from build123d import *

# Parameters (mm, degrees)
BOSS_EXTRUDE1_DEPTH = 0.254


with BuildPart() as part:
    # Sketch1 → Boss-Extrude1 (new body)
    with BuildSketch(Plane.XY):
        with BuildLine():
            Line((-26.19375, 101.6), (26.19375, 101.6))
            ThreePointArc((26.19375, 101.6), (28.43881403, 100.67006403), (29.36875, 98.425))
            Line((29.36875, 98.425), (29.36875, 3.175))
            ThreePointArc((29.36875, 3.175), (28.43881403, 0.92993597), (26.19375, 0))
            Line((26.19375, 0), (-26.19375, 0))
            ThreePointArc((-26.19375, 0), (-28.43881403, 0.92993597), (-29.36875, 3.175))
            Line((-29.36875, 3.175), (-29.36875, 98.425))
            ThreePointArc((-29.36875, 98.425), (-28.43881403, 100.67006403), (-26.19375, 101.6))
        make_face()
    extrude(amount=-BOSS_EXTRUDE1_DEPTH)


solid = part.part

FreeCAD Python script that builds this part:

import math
import FreeCAD as App
import Part
import Sketcher
from FreeCAD import Vector
Q = App.Units.Quantity

doc = App.newDocument("Part")
body = doc.addObject("PartDesign::Body", "Body")

# Sketch on XY plane
sketch1 = doc.addObject("Sketcher::SketchObject", "Sketch")
body.addObject(sketch1)
sketch1.AttachmentSupport = (doc.XY_Plane, [""])
sketch1.MapMode = "FlatFace"
sketch1.addGeometry(Part.LineSegment(Vector(26.2, 101.6, 0), Vector(-26.2, 101.6, 0)), False)
sketch1.addGeometry(Part.ArcOfCircle(Part.Circle(Vector(-26.2, 98.4, 0), Vector(0, 0, 1), 3.2), math.radians(90), math.radians(180)), False)
sketch1.addGeometry(Part.LineSegment(Vector(-29.4, 98.4, 0), Vector(-29.4, 3.2, 0)), False)
sketch1.addGeometry(Part.ArcOfCircle(Part.Circle(Vector(-26.2, 3.2, 0), Vector(0, 0, 1), 3.2), math.radians(-180), math.radians(-90)), False)
sketch1.addGeometry(Part.LineSegment(Vector(-26.2, 0, 0), Vector(26.2, 0, 0)), False)
sketch1.addGeometry(Part.ArcOfCircle(Part.Circle(Vector(26.2, 3.2, 0), Vector(0, 0, 1), 3.2), math.radians(-90), math.radians(0)), False)
sketch1.addGeometry(Part.LineSegment(Vector(29.4, 3.2, 0), Vector(29.4, 98.4, 0)), False)
sketch1.addGeometry(Part.ArcOfCircle(Part.Circle(Vector(26.2, 98.4, 0), Vector(0, 0, 1), 3.2), math.radians(0), math.radians(90)), False)
sketch1.addConstraint(Sketcher.Constraint("Tangent", 0, 2, 1, 1))
sketch1.addConstraint(Sketcher.Constraint("Tangent", 1, 2, 2, 1))
sketch1.addConstraint(Sketcher.Constraint("Tangent", 2, 2, 3, 1))
sketch1.addConstraint(Sketcher.Constraint("Tangent", 3, 2, 4, 1))
sketch1.addConstraint(Sketcher.Constraint("Tangent", 4, 2, 5, 1))
sketch1.addConstraint(Sketcher.Constraint("Tangent", 5, 2, 6, 1))
sketch1.addConstraint(Sketcher.Constraint("Tangent", 6, 2, 7, 1))
sketch1.addConstraint(Sketcher.Constraint("Tangent", 7, 2, 0, 1))
sketch1.addConstraint(Sketcher.Constraint("Horizontal", 0))
sketch1.addConstraint(Sketcher.Constraint("Vertical", 2))
sketch1.addConstraint(Sketcher.Constraint("Horizontal", 4))
sketch1.addConstraint(Sketcher.Constraint("Vertical", 6))
sketch1.addConstraint(Sketcher.Constraint("Equal", 1, 3))
sketch1.addConstraint(Sketcher.Constraint("Equal", 3, 5))
sketch1.addConstraint(Sketcher.Constraint("Equal", 5, 7))
sketch1.addConstraint(Sketcher.Constraint("Symmetric", 3, 2, 4, 2, -1, 1))
sketch1.addConstraint(Sketcher.Constraint("DistanceY", -1, 1, 0, 2, Q("4 in")))
sketch1.addConstraint(Sketcher.Constraint("Radius", 1, Q("0.125 in")))
sketch1.addConstraint(Sketcher.Constraint("DistanceX", 0, 2, 0, 1, Q("2.0625 in")))
pad1 = doc.addObject("PartDesign::Pad", "Pad")
body.addObject(pad1)
pad1.Profile = sketch1
pad1.Length = Q("0.01 in")
pad1.Reversed = True

doc.recompute()
